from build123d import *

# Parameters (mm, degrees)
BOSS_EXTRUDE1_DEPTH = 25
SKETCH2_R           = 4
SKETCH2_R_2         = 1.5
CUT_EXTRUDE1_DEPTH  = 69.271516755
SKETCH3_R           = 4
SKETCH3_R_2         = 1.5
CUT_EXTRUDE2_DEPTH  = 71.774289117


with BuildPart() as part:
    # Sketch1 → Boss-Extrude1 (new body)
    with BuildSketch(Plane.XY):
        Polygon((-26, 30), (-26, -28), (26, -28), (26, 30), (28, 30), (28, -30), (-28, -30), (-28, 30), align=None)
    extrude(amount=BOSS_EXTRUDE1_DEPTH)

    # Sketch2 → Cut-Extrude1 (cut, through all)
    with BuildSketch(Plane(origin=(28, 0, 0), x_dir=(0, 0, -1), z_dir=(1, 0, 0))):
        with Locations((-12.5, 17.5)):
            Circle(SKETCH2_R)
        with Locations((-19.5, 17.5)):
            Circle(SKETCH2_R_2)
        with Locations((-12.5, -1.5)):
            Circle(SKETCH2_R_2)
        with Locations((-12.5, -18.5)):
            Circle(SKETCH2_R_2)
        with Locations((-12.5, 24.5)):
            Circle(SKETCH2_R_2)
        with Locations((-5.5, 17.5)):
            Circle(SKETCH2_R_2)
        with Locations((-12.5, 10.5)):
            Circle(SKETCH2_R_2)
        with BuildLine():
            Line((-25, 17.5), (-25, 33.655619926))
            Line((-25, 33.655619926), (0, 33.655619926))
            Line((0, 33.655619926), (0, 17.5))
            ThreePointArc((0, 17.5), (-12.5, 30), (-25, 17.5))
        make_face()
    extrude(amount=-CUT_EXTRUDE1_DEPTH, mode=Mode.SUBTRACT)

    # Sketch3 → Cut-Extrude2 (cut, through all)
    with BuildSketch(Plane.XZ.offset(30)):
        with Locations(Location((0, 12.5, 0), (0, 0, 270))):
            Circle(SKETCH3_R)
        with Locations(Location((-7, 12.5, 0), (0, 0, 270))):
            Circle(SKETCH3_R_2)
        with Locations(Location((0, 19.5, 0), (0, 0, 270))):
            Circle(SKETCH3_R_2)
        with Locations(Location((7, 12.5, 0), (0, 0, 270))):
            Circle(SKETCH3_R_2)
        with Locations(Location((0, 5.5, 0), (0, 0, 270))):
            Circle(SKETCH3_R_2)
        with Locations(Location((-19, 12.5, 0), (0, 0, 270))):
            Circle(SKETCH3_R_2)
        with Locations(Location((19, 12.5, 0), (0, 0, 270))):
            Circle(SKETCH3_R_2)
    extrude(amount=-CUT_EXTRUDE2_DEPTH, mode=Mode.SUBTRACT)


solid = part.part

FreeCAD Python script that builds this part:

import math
import FreeCAD as App
import Part
import Sketcher
Q = App.Units.Quantity

doc = App.newDocument("Part")
body = doc.addObject("PartDesign::Body", "Body")

sketch1 = doc.addObject("Sketcher::SketchObject", "Sketch")
body.addObject(sketch1)
sketch1.AttachmentSupport = (doc.XY_Plane, [""])
sketch1.MapMode = "FlatFace"
sketch1.addGeometry(Part.LineSegment(App.Vector(-26, -28, 0), App.Vector(-26, 30, 0)), False)
sketch1.addGeometry(Part.LineSegment(App.Vector(-26, 30, 0), App.Vector(-28, 30, 0)), False)
sketch1.addGeometry(Part.LineSegment(App.Vector(-28, 30, 0), App.Vector(-28, -30, 0)), False)
sketch1.addGeometry(Part.LineSegment(App.Vector(-28, -30, 0), App.Vector(28, -30, 0)), False)
sketch1.addGeometry(Part.LineSegment(App.Vector(28, -30, 0), App.Vector(28, 30, 0)), False)
sketch1.addGeometry(Part.LineSegment(App.Vector(28, 30, 0), App.Vector(26, 30, 0)), False)
sketch1.addGeometry(Part.LineSegment(App.Vector(26, 30, 0), App.Vector(26, -28, 0)), False)
sketch1.addGeometry(Part.LineSegment(App.Vector(26, -28, 0), App.Vector(-26, -28, 0)), False)
sketch1.addConstraint(Sketcher.Constraint("Coincident", 0, 2, 1, 1))
sketch1.addConstraint(Sketcher.Constraint("Coincident", 1, 2, 2, 1))
sketch1.addConstraint(Sketcher.Constraint("Coincident", 2, 2, 3, 1))
sketch1.addConstraint(Sketcher.Constraint("Coincident", 3, 2, 4, 1))
sketch1.addConstraint(Sketcher.Constraint("Coincident", 4, 2, 5, 1))
sketch1.addConstraint(Sketcher.Constraint("Coincident", 5, 2, 6, 1))
sketch1.addConstraint(Sketcher.Constraint("Coincident", 6, 2, 7, 1))
sketch1.addConstraint(Sketcher.Constraint("Coincident", 7, 2, 0, 1))
sketch1.addConstraint(Sketcher.Constraint("Vertical", 0))
sketch1.addConstraint(Sketcher.Constraint("Horizontal", 1))
sketch1.addConstraint(Sketcher.Constraint("Vertical", 2))
sketch1.addConstraint(Sketcher.Constraint("Horizontal", 3))
sketch1.addConstraint(Sketcher.Constraint("Vertical", 4))
sketch1.addConstraint(Sketcher.Constraint("Horizontal", 5))
sketch1.addConstraint(Sketcher.Constraint("Vertical", 6))
sketch1.addConstraint(Sketcher.Constraint("Horizontal", 7))
sketch1.addConstraint(Sketcher.Constraint("Symmetric", 1, 2, 3, 2, -1, 1))
sketch1.addConstraint(Sketcher.Constraint("Symmetric", 0, 2, 5, 2, -2))
sketch1.addConstraint(Sketcher.Constraint("DistanceX", 1, 2, 1, 1, Q("2 mm")))
sketch1.addConstraint(Sketcher.Constraint("DistanceX", 3, 1, 3, 2, Q("56 mm")))
sketch1.addConstraint(Sketcher.Constraint("DistanceY", 0, 1, 0, 2, Q("58 mm")))
sketch1.addConstraint(Sketcher.Constraint("DistanceY", 2, 2, 2, 1, Q("60 mm")))
pad1 = doc.addObject("PartDesign::Pad", "Pad")
body.addObject(pad1)
pad1.Profile = sketch1
pad1.Length = 25

sketch2 = doc.addObject("Sketcher::SketchObject", "Sketch001")
body.addObject(sketch2)
sketch2.AttachmentSupport = (doc.YZ_Plane, [""])
sketch2.MapMode = "FlatFace"
sketch2.AttachmentOffset = App.Placement(App.Vector(0, 0, 28), App.Rotation())
sketch2.addGeometry(Part.Circle(App.Vector(17.5, 12.5, 0), App.Vector(0, 0, 1), 4), False)
sketch2.addGeometry(Part.Circle(App.Vector(17.5, 19.5, 0), App.Vector(0, 0, 1), 1.5), False)
sketch2.addGeometry(Part.Circle(App.Vector(-1.5, 12.5, 0), App.Vector(0, 0, 1), 1.5), False)
sketch2.addGeometry(Part.Circle(App.Vector(-18.5, 12.5, 0), App.Vector(0, 0, 1), 1.5), False)
sketch2.addGeometry(Part.Circle(App.Vector(24.5, 12.5, 0), App.Vector(0, 0, 1), 1.5), False)
sketch2.addGeometry(Part.Circle(App.Vector(17.5, 5.5, 0), App.Vector(0, 0, 1), 1.5), False)
sketch2.addGeometry(Part.Circle(App.Vector(10.5, 12.5, 0), App.Vector(0, 0, 1), 1.5), False)
sketch2.addGeometry(Part.LineSegment(App.Vector(33.7, 25, 0), App.Vector(17.5, 25, 0)), False)
sketch2.addGeometry(Part.ArcOfCircle(Part.Circle(App.Vector(17.5, 12.5, 0), App.Vector(0, 0, 1), 12.5), math.radians(-90), math.radians(90)), False)
sketch2.addGeometry(Part.LineSegment(App.Vector(17.5, 0, 0), App.Vector(33.7, 0, 0)), False)
sketch2.addGeometry(Part.LineSegment(App.Vector(33.7, 0, 0), App.Vector(33.7, 25, 0)), False)
sketch2.addConstraint(Sketcher.Constraint("Tangent", 7, 2, 8, 2))
sketch2.addConstraint(Sketcher.Constraint("Tangent", 8, 1, 9, 1))
sketch2.addConstraint(Sketcher.Constraint("Coincident", 9, 2, 10, 1))
sketch2.addConstraint(Sketcher.Constraint("Coincident", 10, 2, 7, 1))
sketch2.addConstraint(Sketcher.Constraint("Horizontal", 7))
sketch2.addConstraint(Sketcher.Constraint("Horizontal", 9))
sketch2.addConstraint(Sketcher.Constraint("Vertical", 10))
sketch2.addConstraint(Sketcher.Constraint("Coincident", 8, 3, 0, 3))
sketch2.addConstraint(Sketcher.Constraint("Equal", 1, 2))
sketch2.addConstraint(Sketcher.Constraint("Equal", 2, 3))
sketch2.addConstraint(Sketcher.Constraint("Equal", 3, 4))
sketch2.addConstraint(Sketcher.Constraint("Equal", 4, 5))
sketch2.addConstraint(Sketcher.Constraint("Equal", 5, 6))
sketch2.addConstraint(Sketcher.Constraint("PointOnObject", 8, 1, -1))
sketch2.addConstraint(Sketcher.Constraint("Horizontal", 0, 3, 2, 3))
sketch2.addConstraint(Sketcher.Constraint("Horizontal", 2, 3, 3, 3))
sketch2.addConstraint(Sketcher.Constraint("Horizontal", 3, 3, 4, 3))
sketch2.addConstraint(Sketcher.Constraint("Horizontal", 4, 3, 6, 3))
sketch2.addConstraint(Sketcher.Constraint("Vertical", 0, 3, 1, 3))
sketch2.addConstraint(Sketcher.Constraint("Vertical", 1, 3, 5, 3))
sketch2.addConstraint(Sketcher.Constraint("Diameter", 0, Q("8 mm")))
sketch2.addConstraint(Sketcher.Constraint("Diameter", 1, Q("3 mm")))
sketch2.addConstraint(Sketcher.Constraint("Radius", 8, Q("12.5 mm")))
sketch2.addConstraint(Sketcher.Constraint("DistanceY", 0, 3, 1, 3, Q("7 mm")))
sketch2.addConstraint(Sketcher.Constraint("DistanceX", 2, 3, 0, 3, Q("19 mm")))
sketch2.addConstraint(Sketcher.Constraint("DistanceX", 3, 3, 2, 3, Q("17 mm")))
sketch2.addConstraint(Sketcher.Constraint("DistanceX", 0, 3, 4, 3, Q("7 mm")))
sketch2.addConstraint(Sketcher.Constraint("DistanceY", 5, 3, 0, 3, Q("7 mm")))
sketch2.addConstraint(Sketcher.Constraint("DistanceX", 6, 3, 0, 3, Q("7 mm")))
sketch2.addConstraint(Sketcher.Constraint("DistanceX", -1, 1, 0, 3, Q("17.5 mm")))
sketch2.addConstraint(Sketcher.Constraint("DistanceX", 7, 2, 7, 1, Q("16.15562 mm")))
pocket1 = doc.addObject("PartDesign::Pocket", "Pocket")
body.addObject(pocket1)
pocket1.Profile = sketch2
pocket1.Type = "ThroughAll"

sketch3 = doc.addObject("Sketcher::SketchObject", "Sketch002")
body.addObject(sketch3)
sketch3.AttachmentSupport = (doc.XZ_Plane, [""])
sketch3.MapMode = "FlatFace"
sketch3.AttachmentOffset = App.Placement(App.Vector(0, 0, 30), App.Rotation())
sketch3.addGeometry(Part.Circle(App.Vector(0, 12.5, 0), App.Vector(0, 0, 1), 4), False)
sketch3.addGeometry(Part.Circle(App.Vector(-7, 12.5, 0), App.Vector(0, 0, 1), 1.5), False)
sketch3.addGeometry(Part.Circle(App.Vector(0, 19.5, 0), App.Vector(0, 0, 1), 1.5), False)
sketch3.addGeometry(Part.Circle(App.Vector(7, 12.5, 0), App.Vector(0, 0, 1), 1.5), False)
sketch3.addGeometry(Part.Circle(App.Vector(0, 5.5, 0), App.Vector(0, 0, 1), 1.5), False)
sketch3.addGeometry(Part.Circle(App.Vector(-19, 12.5, 0), App.Vector(0, 0, 1), 1.5), False)
sketch3.addGeometry(Part.Circle(App.Vector(19, 12.5, 0), App.Vector(0, 0, 1), 1.5), False)
sketch3.addConstraint(Sketcher.Constraint("Equal", 1, 2))
sketch3.addConstraint(Sketcher.Constraint("Equal", 2, 3))
sketch3.addConstraint(Sketcher.Constraint("Equal", 3, 4))
sketch3.addConstraint(Sketcher.Constraint("Equal", 4, 5))
sketch3.addConstraint(Sketcher.Constraint("Equal", 5, 6))
sketch3.addConstraint(Sketcher.Constraint("Symmetric", 1, 3, 3, 3, -2))
sketch3.addConstraint(Sketcher.Constraint("Symmetric", 5, 3, 6, 3, -2))
sketch3.addConstraint(Sketcher.Constraint("PointOnObject", 0, 3, -2))
sketch3.addConstraint(Sketcher.Constraint("PointOnObject", 2, 3, -2))
sketch3.addConstraint(Sketcher.Constraint("PointOnObject", 4, 3, -2))
sketch3.addConstraint(Sketcher.Constraint("Horizontal", 0, 3, 1, 3))
sketch3.addConstraint(Sketcher.Constraint("Horizontal", 3, 3, 5, 3))
sketch3.addConstraint(Sketcher.Constraint("Diameter", 0, Q("8 mm")))
sketch3.addConstraint(Sketcher.Constraint("Diameter", 1, Q("3 mm")))
sketch3.addConstraint(Sketcher.Constraint("DistanceX", 1, 3, -1, 1, Q("7 mm")))
sketch3.addConstraint(Sketcher.Constraint("DistanceX", 5, 3, -1, 1, Q("19 mm")))
sketch3.addConstraint(Sketcher.Constraint("DistanceY", 0, 3, 2, 3, Q("7 mm")))
sketch3.addConstraint(Sketcher.Constraint("DistanceY", 4, 3, 0, 3, Q("7 mm")))
sketch3.addConstraint(Sketcher.Constraint("DistanceY", -1, 1, 0, 3, Q("12.5 mm")))
pocket2 = doc.addObject("PartDesign::Pocket", "Pocket001")
body.addObject(pocket2)
pocket2.Profile = sketch3
pocket2.Type = "ThroughAll"

doc.recompute()
